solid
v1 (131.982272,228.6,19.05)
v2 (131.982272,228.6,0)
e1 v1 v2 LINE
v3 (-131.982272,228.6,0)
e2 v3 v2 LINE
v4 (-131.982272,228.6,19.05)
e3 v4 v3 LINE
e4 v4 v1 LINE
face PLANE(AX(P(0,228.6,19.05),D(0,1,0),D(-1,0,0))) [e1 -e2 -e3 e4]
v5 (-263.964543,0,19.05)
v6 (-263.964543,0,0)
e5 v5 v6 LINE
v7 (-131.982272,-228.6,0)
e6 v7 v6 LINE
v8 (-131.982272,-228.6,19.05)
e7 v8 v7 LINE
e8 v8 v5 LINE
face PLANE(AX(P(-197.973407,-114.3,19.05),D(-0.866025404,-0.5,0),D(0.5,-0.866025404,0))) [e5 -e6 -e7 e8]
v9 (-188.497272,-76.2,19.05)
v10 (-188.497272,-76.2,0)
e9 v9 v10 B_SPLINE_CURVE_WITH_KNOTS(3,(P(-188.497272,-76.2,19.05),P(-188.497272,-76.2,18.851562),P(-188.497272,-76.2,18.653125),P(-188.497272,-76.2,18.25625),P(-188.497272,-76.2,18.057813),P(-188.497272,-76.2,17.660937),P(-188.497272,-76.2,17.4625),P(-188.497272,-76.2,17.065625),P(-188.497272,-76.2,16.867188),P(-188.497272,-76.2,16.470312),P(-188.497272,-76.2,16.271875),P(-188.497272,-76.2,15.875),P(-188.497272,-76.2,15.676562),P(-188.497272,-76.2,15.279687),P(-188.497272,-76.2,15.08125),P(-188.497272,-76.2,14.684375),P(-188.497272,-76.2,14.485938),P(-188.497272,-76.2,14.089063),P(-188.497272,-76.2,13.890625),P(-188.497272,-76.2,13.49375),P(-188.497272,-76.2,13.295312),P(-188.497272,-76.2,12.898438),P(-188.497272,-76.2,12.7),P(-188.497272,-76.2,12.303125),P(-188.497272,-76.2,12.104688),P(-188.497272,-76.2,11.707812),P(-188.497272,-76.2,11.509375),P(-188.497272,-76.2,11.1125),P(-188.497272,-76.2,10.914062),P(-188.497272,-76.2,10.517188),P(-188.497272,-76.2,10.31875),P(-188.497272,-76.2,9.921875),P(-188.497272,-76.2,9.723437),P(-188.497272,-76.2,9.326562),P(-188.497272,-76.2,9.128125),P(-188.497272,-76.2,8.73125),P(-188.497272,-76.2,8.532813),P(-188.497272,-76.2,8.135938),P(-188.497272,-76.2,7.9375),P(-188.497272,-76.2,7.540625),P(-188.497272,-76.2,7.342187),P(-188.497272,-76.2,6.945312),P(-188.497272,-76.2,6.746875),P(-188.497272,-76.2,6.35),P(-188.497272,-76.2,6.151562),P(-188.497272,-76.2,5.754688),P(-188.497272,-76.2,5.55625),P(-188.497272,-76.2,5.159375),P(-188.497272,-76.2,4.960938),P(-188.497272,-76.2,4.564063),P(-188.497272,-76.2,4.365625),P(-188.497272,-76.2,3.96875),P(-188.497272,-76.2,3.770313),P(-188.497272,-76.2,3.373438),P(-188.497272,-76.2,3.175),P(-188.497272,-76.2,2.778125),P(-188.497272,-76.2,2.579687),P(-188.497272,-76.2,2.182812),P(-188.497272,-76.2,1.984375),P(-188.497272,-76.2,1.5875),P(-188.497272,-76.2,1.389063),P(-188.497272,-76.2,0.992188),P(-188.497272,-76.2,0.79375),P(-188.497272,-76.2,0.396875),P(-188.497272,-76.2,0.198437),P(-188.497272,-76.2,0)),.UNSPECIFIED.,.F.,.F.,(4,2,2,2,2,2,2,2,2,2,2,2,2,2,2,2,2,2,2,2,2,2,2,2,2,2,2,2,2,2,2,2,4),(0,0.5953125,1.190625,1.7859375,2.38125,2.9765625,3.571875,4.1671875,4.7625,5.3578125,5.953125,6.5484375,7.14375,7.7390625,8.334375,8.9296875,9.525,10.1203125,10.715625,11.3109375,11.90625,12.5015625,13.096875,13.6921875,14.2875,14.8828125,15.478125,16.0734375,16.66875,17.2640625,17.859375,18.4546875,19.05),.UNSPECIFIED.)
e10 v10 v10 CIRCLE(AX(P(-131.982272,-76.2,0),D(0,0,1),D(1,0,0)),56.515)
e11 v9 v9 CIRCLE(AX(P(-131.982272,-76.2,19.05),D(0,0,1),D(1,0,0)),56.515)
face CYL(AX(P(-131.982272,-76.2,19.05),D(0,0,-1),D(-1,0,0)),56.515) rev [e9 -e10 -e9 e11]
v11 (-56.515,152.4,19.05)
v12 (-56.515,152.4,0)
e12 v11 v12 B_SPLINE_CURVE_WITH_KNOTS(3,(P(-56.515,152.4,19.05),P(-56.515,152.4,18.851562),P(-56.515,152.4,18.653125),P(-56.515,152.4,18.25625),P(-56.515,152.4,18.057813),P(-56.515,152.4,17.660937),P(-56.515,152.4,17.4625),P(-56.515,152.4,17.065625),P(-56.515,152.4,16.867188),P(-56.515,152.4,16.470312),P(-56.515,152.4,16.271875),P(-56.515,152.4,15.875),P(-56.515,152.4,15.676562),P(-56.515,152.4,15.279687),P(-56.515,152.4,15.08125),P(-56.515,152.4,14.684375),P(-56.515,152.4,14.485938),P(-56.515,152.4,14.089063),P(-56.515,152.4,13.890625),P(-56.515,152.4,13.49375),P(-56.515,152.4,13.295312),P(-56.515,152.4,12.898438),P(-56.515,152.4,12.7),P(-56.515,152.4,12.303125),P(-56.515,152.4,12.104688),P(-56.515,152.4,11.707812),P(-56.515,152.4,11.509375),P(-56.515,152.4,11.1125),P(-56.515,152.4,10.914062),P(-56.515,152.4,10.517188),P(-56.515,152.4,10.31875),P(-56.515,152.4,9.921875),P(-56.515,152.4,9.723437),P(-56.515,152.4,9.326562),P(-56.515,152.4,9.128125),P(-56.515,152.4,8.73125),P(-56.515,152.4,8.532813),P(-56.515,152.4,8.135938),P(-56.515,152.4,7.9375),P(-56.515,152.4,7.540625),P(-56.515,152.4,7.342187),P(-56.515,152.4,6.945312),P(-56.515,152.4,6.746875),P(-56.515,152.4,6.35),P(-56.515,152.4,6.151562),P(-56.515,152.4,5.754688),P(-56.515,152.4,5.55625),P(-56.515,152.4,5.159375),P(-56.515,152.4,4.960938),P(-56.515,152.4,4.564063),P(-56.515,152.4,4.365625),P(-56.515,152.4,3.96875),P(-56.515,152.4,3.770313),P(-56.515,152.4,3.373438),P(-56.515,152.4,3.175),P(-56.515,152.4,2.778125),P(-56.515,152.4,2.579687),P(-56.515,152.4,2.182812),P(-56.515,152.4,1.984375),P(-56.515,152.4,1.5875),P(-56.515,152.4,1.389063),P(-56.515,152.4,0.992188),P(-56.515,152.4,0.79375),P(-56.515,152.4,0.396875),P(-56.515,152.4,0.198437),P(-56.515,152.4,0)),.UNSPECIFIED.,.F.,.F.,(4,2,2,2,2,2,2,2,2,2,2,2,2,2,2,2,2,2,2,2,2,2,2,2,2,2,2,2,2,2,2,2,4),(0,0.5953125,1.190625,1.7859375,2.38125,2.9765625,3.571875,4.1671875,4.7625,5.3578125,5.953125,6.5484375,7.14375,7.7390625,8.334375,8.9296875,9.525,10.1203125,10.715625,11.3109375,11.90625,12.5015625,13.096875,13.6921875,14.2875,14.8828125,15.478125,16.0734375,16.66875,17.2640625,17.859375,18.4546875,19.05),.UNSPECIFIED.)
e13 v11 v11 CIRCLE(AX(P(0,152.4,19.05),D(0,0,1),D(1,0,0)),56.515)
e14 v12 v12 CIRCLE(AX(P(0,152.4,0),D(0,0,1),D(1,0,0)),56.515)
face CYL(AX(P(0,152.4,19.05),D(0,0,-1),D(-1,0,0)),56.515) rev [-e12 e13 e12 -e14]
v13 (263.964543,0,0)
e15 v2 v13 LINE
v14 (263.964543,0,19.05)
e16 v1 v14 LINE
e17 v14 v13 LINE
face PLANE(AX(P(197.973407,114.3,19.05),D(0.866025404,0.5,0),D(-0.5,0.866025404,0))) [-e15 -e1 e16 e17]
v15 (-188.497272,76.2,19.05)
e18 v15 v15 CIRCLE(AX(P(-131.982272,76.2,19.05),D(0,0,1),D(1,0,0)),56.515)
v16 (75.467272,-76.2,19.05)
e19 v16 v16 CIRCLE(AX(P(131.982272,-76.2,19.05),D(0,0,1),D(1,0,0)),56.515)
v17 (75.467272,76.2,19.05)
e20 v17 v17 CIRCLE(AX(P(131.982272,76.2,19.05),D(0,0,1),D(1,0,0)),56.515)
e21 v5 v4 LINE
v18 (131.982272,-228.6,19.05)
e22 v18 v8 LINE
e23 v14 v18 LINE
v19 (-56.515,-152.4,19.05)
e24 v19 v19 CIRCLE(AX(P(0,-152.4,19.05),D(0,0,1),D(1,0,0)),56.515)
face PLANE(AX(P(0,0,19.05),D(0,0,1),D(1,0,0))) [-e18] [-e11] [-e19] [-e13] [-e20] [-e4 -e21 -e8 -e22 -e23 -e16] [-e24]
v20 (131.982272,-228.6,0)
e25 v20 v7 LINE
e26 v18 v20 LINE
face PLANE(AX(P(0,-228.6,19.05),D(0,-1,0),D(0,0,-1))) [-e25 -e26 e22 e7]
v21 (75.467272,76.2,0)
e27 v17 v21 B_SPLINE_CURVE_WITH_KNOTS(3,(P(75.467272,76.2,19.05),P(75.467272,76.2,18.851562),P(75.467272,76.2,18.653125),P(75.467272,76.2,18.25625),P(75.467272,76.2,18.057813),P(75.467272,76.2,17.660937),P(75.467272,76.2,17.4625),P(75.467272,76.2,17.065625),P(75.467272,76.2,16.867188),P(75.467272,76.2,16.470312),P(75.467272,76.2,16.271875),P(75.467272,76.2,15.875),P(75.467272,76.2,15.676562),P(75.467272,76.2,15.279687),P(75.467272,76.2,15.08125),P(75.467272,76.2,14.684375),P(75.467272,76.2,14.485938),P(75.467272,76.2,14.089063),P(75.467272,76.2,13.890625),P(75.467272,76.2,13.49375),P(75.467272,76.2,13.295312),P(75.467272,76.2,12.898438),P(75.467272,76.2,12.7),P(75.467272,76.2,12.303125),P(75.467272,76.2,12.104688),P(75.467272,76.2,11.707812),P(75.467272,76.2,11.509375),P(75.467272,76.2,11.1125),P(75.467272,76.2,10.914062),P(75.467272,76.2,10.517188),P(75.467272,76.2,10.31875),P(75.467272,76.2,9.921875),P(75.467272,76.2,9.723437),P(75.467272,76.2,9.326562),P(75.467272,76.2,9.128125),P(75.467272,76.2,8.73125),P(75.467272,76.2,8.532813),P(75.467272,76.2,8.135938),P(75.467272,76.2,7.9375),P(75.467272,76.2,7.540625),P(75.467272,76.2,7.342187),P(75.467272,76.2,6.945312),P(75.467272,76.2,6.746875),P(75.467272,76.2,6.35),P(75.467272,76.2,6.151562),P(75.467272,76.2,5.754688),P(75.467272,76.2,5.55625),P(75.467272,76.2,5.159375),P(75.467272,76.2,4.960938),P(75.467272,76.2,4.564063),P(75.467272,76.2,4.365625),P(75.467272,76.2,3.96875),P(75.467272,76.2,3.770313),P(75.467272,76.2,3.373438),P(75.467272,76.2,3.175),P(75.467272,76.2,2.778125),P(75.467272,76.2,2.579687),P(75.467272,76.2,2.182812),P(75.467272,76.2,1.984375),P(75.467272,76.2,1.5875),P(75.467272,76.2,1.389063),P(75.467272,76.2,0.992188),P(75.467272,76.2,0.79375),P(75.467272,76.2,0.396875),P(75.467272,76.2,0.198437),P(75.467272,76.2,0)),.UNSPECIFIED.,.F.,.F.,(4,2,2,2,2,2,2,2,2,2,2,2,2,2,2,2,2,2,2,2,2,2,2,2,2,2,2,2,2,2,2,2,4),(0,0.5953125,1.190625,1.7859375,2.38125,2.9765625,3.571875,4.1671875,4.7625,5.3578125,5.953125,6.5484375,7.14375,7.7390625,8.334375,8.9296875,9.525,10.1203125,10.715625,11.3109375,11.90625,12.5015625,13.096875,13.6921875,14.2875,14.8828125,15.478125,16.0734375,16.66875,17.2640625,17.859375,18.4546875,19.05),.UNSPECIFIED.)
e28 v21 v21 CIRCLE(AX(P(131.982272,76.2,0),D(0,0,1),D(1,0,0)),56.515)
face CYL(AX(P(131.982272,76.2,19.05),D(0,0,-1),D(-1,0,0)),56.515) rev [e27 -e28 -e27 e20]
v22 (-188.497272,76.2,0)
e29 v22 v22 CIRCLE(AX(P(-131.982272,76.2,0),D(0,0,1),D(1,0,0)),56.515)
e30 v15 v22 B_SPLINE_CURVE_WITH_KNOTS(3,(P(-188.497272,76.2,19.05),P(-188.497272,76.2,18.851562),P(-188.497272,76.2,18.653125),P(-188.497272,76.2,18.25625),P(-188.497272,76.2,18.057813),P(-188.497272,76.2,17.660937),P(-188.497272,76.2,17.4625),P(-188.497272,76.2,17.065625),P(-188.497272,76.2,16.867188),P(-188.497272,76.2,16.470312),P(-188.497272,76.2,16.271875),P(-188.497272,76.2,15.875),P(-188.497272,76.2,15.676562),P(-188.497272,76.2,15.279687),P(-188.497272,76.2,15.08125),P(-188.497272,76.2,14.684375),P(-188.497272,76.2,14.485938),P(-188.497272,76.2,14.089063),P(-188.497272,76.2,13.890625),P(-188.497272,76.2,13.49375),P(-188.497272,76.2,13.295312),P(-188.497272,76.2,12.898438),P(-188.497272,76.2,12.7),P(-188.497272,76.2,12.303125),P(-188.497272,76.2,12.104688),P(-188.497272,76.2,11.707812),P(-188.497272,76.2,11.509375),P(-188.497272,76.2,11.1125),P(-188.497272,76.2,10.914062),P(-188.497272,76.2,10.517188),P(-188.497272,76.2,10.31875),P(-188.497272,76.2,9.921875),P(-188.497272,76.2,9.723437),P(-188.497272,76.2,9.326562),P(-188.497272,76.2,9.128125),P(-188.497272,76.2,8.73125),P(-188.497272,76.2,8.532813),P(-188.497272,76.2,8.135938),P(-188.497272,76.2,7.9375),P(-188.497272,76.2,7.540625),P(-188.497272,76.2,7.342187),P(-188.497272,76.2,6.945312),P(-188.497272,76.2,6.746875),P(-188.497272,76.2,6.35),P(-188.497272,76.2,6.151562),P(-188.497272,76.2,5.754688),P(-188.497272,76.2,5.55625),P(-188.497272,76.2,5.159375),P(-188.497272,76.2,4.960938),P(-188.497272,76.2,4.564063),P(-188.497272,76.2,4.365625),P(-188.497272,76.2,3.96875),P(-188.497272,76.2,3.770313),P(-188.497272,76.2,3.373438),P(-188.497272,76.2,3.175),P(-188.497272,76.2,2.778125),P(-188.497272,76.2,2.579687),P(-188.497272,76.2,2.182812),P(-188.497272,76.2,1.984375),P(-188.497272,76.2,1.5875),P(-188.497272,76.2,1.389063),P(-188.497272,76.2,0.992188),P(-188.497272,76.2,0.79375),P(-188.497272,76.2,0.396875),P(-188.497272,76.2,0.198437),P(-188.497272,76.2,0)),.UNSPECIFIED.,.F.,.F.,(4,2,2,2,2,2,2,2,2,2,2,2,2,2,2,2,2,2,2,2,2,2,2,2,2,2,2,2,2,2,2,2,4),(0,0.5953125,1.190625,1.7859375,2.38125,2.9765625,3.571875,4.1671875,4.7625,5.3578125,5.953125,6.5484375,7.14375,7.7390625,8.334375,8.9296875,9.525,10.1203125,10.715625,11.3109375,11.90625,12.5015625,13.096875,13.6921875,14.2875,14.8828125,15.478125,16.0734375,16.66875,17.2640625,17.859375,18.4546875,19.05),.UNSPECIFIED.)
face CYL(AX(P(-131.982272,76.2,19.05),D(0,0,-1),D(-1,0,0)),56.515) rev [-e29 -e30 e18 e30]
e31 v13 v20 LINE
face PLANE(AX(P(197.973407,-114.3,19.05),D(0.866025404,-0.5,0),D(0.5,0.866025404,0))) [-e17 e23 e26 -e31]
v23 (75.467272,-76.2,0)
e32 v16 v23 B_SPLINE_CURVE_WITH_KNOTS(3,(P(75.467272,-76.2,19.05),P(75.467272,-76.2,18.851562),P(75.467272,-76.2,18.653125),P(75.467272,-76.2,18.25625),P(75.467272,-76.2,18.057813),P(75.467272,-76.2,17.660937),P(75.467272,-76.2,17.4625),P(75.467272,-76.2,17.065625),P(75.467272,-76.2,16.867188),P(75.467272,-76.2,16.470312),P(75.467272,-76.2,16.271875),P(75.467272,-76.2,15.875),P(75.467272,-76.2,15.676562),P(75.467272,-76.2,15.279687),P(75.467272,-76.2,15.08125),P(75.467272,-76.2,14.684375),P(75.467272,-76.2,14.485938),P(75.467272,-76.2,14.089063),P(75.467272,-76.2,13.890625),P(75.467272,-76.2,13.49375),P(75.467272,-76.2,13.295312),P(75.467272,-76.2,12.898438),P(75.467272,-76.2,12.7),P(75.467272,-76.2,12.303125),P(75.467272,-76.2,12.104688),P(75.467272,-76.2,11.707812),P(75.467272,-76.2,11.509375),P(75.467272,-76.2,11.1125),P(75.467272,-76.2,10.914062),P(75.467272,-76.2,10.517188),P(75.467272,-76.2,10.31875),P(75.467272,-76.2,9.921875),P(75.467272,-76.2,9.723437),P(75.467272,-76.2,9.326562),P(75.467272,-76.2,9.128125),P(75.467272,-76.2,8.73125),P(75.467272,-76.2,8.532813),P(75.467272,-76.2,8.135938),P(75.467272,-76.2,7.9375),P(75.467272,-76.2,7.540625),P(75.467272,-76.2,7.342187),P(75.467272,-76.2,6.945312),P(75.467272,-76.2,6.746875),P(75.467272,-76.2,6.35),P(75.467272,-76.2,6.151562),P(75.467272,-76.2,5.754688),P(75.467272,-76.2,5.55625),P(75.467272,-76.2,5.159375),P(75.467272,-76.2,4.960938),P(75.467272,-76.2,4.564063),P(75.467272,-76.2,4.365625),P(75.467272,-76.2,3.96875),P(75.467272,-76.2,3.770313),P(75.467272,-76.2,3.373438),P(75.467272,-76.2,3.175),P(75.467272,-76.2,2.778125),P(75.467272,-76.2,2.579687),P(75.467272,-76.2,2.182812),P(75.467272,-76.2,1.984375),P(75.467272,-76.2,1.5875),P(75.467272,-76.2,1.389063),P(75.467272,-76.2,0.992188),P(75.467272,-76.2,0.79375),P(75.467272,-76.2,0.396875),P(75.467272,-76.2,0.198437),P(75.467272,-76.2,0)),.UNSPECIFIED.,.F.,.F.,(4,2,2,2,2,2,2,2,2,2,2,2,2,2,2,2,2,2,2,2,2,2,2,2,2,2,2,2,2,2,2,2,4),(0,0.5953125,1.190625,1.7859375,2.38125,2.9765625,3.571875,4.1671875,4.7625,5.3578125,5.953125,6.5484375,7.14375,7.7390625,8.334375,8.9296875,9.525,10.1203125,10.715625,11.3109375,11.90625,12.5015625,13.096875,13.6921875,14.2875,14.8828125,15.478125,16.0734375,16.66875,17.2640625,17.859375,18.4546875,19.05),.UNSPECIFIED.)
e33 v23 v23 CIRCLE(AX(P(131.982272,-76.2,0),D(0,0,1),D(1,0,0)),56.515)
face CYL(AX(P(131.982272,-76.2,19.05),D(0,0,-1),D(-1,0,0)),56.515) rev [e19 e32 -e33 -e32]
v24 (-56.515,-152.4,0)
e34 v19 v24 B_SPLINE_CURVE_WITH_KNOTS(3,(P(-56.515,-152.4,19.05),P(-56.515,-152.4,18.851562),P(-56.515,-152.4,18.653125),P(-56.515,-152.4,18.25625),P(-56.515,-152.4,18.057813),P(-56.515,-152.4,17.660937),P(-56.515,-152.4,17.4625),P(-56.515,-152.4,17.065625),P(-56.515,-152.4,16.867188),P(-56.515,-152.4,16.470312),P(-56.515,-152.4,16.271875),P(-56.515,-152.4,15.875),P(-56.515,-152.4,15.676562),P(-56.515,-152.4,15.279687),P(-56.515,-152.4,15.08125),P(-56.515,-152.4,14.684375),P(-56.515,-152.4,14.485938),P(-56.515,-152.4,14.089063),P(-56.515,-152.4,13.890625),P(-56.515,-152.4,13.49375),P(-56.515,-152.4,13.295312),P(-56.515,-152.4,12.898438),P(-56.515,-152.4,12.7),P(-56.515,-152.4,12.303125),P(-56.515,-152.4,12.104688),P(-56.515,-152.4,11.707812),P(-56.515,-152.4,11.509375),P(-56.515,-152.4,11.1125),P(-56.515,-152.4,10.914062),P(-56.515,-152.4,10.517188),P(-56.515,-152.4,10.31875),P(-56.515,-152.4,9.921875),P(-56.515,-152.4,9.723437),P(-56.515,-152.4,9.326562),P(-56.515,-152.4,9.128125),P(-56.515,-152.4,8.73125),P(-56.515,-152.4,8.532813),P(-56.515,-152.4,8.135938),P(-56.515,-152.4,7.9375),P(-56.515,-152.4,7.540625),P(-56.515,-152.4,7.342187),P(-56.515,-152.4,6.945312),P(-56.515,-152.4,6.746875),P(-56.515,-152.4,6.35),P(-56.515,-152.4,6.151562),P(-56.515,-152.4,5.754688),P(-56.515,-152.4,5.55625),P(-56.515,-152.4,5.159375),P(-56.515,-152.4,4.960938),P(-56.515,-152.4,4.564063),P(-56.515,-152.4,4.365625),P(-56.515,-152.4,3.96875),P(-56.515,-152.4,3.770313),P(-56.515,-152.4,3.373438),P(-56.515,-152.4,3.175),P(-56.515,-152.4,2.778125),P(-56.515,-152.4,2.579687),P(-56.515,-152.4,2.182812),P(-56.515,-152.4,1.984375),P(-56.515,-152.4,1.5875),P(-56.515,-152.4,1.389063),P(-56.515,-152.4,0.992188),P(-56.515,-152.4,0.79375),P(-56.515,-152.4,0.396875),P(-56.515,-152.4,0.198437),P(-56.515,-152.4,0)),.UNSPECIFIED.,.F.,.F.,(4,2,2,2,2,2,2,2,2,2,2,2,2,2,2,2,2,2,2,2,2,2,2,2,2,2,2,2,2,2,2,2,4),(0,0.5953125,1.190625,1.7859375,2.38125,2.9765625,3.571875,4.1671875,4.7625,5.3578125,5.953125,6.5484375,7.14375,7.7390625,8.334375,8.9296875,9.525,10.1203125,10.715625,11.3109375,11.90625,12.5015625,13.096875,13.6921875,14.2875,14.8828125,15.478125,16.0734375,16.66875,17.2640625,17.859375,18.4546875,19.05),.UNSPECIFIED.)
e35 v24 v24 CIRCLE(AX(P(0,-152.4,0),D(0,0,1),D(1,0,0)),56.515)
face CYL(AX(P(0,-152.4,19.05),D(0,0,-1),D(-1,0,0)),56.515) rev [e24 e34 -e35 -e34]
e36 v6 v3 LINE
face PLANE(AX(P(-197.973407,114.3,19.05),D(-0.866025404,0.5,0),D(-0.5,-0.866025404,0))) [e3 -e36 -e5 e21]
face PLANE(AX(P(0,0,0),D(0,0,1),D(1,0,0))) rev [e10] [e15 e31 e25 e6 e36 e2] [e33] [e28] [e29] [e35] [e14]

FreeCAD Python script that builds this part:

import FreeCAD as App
import Part
import Sketcher

V = App.Vector
Q = App.Units.Quantity

doc = App.newDocument("Part")
body = doc.addObject("PartDesign::Body", "Body")

# Sketch on XY plane
sketch1 = body.newObject("Sketcher::SketchObject", "Sketch")
sketch1.AttachmentSupport = (doc.getObject("XY_Plane"), [""])
sketch1.MapMode = "FlatFace"
sketch1.addGeometry(Part.LineSegment(V(-132, 229, 0), V(-264, 0, 0)), False)
sketch1.addGeometry(Part.LineSegment(V(-264, 0, 0), V(-132, -229, 0)), False)
sketch1.addGeometry(Part.LineSegment(V(-132, -229, 0), V(132, -229, 0)), False)
sketch1.addGeometry(Part.LineSegment(V(132, -229, 0), V(264, 0, 0)), False)
sketch1.addGeometry(Part.LineSegment(V(264, 0, 0), V(132, 229, 0)), False)
sketch1.addGeometry(Part.LineSegment(V(132, 229, 0), V(-132, 229, 0)), False)
sketch1.addGeometry(Part.Circle(V(-132, 76, 0), V(0, 0, 1), 57), False)
sketch1.addGeometry(Part.Circle(V(-132, -76, 0), V(0, 0, 1), 57), False)
sketch1.addGeometry(Part.Circle(V(0, 152, 0), V(0, 0, 1), 57), False)
sketch1.addGeometry(Part.Circle(V(0, -152, 0), V(0, 0, 1), 57), False)
sketch1.addGeometry(Part.Circle(V(132, 76, 0), V(0, 0, 1), 57), False)
sketch1.addGeometry(Part.Circle(V(132, -76, 0), V(0, 0, 1), 57), False)
sketch1.addConstraint(Sketcher.Constraint("Coincident", 0, 2, 1, 1))
sketch1.addConstraint(Sketcher.Constraint("Coincident", 1, 2, 2, 1))
sketch1.addConstraint(Sketcher.Constraint("Coincident", 2, 2, 3, 1))
sketch1.addConstraint(Sketcher.Constraint("Coincident", 3, 2, 4, 1))
sketch1.addConstraint(Sketcher.Constraint("Coincident", 4, 2, 5, 1))
sketch1.addConstraint(Sketcher.Constraint("Coincident", 5, 2, 0, 1))
sketch1.addConstraint(Sketcher.Constraint("Horizontal", 2))
sketch1.addConstraint(Sketcher.Constraint("Horizontal", 5))
sketch1.addConstraint(Sketcher.Constraint("Equal", 6, 7))
sketch1.addConstraint(Sketcher.Constraint("Equal", 7, 8))
sketch1.addConstraint(Sketcher.Constraint("Equal", 8, 9))
sketch1.addConstraint(Sketcher.Constraint("Equal", 9, 10))
sketch1.addConstraint(Sketcher.Constraint("Equal", 10, 11))
sketch1.addConstraint(Sketcher.Constraint("Symmetric", 8, 3, 9, 3, -1, 1))
sketch1.addConstraint(Sketcher.Constraint("Symmetric", 7, 3, 10, 3, -1, 1))
sketch1.addConstraint(Sketcher.Constraint("Symmetric", 6, 3, 11, 3, -1, 1))
sketch1.addConstraint(Sketcher.Constraint("Symmetric", 0, 2, 3, 2, -1, 1))
sketch1.addConstraint(Sketcher.Constraint("Symmetric", 1, 2, 4, 2, -1, 1))
sketch1.addConstraint(Sketcher.Constraint("Symmetric", 6, 3, 10, 3, -2))
sketch1.addConstraint(Sketcher.Constraint("PointOnObject", 8, 3, -2))
sketch1.addConstraint(Sketcher.Constraint("PointOnObject", 0, 2, -1))
sketch1.addConstraint(Sketcher.Constraint("Parallel", 0, 3))
sketch1.addConstraint(Sketcher.Constraint("Vertical", 7, 3, 1, 2))
sketch1.addConstraint(Sketcher.Constraint("Vertical", 11, 3, 2, 2))
sketch1.addConstraint(Sketcher.Constraint("Diameter", 6, Q("4.45 in")))
sketch1.addConstraint(Sketcher.Constraint("DistanceY", -1, 1, 6, 3, Q("3 in")))
sketch1.addConstraint(Sketcher.Constraint("DistanceY", -1, 1, 8, 3, Q("6 in")))
sketch1.addConstraint(Sketcher.Constraint("DistanceY", 1, 2, -1, 1, Q("9 in")))
sketch1.addConstraint(Sketcher.Constraint("Angle", 0, Q("-120 deg")))
sketch1.addConstraint(Sketcher.Constraint("DistanceX", 2, 1, 2, 2, 263.964543))
pad1 = body.newObject("PartDesign::Pad", "Pad")
pad1.Profile = sketch1
pad1.Length = Q("0.75 in")

doc.recompute()
